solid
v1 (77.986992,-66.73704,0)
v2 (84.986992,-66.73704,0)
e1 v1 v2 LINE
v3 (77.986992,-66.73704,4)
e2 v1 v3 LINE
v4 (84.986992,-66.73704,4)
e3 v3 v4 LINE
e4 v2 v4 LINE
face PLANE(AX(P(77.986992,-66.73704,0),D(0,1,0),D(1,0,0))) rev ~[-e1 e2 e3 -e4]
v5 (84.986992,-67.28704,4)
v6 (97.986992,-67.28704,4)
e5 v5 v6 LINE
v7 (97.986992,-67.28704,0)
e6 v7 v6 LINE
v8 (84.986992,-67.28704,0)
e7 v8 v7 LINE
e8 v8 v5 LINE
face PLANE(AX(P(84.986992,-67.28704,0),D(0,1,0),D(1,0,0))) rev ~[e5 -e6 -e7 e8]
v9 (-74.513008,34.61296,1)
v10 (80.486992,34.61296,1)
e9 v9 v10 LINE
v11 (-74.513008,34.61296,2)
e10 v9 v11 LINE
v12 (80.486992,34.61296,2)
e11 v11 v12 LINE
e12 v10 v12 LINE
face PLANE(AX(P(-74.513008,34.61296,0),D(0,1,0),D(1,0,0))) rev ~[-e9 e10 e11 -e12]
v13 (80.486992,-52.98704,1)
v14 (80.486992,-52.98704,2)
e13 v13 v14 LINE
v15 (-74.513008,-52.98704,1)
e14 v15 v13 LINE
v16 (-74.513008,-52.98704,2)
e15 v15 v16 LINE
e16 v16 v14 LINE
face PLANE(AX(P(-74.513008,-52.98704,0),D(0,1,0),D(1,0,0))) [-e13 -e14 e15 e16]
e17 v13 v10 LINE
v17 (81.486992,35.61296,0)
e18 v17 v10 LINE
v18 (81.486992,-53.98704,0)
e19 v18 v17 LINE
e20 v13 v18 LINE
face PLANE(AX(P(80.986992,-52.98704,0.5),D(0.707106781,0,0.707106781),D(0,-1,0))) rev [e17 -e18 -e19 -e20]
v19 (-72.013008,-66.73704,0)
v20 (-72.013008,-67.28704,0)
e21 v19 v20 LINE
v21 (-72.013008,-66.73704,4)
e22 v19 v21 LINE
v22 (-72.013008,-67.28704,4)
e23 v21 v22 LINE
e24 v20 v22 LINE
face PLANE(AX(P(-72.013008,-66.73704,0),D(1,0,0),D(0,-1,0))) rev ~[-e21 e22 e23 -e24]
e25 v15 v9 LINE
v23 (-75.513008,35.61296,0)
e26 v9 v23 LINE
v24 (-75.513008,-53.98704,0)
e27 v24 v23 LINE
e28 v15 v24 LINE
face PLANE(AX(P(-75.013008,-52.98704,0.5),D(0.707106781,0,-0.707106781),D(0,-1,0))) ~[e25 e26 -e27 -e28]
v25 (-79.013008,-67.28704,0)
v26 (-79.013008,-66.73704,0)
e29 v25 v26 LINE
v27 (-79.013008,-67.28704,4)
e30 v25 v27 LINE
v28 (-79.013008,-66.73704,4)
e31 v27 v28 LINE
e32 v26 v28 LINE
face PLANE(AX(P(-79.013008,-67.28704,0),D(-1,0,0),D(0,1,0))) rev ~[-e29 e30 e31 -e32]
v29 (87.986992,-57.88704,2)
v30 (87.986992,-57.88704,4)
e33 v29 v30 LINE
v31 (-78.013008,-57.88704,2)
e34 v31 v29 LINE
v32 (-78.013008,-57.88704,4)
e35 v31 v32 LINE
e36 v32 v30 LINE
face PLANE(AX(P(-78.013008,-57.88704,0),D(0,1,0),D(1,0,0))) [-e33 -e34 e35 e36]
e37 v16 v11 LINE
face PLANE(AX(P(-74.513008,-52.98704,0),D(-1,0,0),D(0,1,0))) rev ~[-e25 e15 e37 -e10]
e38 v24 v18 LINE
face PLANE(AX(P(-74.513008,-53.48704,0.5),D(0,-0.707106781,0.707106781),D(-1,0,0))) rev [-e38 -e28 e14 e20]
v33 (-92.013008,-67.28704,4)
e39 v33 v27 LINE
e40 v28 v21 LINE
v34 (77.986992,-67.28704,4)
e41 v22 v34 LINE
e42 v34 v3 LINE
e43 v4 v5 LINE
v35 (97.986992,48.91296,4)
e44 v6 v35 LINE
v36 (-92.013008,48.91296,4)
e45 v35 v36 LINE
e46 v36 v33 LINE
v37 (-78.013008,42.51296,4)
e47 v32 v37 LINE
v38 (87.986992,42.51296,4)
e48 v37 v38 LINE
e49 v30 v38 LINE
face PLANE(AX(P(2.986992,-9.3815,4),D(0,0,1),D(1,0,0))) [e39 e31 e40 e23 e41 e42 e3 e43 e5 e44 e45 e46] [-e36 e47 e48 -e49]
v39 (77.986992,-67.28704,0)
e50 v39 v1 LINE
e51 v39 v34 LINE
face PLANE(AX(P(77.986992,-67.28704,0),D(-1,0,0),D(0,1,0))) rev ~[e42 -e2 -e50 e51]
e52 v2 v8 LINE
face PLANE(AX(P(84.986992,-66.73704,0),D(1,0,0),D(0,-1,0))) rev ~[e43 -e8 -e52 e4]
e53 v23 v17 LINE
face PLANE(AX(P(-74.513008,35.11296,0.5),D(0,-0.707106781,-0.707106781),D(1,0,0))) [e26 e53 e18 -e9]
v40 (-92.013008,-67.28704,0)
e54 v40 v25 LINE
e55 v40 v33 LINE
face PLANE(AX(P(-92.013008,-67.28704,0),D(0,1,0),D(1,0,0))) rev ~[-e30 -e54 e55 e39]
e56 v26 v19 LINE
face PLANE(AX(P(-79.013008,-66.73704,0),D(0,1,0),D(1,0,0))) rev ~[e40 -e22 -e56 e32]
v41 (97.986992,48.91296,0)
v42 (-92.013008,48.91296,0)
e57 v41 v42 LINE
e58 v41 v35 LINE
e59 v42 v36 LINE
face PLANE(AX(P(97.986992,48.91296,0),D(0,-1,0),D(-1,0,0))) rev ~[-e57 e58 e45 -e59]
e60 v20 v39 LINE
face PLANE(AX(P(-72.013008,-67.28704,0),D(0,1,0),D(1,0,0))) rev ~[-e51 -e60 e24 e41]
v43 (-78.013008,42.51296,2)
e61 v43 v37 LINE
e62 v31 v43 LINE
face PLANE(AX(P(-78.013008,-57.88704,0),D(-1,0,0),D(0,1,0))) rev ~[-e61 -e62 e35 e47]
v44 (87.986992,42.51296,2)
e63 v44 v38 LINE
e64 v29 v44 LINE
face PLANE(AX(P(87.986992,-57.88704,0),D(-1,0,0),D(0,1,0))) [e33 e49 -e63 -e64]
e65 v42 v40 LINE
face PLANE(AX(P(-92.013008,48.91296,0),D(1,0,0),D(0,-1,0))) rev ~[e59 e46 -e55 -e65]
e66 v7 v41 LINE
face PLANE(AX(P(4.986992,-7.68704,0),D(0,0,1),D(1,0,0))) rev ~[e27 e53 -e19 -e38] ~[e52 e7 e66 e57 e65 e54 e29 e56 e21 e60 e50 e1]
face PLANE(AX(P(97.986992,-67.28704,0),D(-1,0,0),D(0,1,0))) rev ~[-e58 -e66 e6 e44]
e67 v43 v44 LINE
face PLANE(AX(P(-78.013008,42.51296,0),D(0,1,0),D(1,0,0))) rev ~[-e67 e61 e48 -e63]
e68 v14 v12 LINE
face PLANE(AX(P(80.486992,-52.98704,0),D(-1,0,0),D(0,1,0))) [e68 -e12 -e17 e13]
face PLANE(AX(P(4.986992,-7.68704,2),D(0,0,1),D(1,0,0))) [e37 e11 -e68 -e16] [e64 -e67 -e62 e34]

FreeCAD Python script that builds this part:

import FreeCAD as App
import Part
import Sketcher

V = App.Vector
Q = App.Units.Quantity


def edges_at(feature, points):
    """Names of the edges that pass closest to the given points."""
    edges = feature.Shape.Edges
    near = lambda p: min(range(len(edges)), key=lambda i: edges[i].distToShape(Part.Vertex(*p))[0])
    return sorted({f"Edge{near(p) + 1}" for p in points})

doc = App.newDocument("Part")
body = doc.addObject("PartDesign::Body", "Body")

# Sketch on XY plane
sketch1 = doc.addObject("Sketcher::SketchObject", "Sketch")
body.addObject(sketch1)
sketch1.AttachmentSupport = (doc.XY_Plane, [""])
sketch1.MapMode = "FlatFace"
sketch1.addGeometry(Part.LineSegment(V(97.986992, 48.91296, 0), V(-92.013008, 48.91296, 0)), False)
sketch1.addGeometry(Part.LineSegment(V(-92.013008, 48.91296, 0), V(-92.013008, -67.28704, 0)), False)
sketch1.addGeometry(Part.LineSegment(V(-92.013008, -67.28704, 0), V(-79.013008, -67.28704, 0)), False)
sketch1.addGeometry(Part.LineSegment(V(-79.013008, -67.28704, 0), V(-79.013008, -66.73704, 0)), False)
sketch1.addGeometry(Part.LineSegment(V(-79.013008, -66.73704, 0), V(-72.013008, -66.73704, 0)), False)
sketch1.addGeometry(Part.LineSegment(V(-72.013008, -66.73704, 0), V(-72.013008, -67.28704, 0)), False)
sketch1.addGeometry(Part.LineSegment(V(-72.013008, -67.28704, 0), V(77.986992, -67.28704, 0)), False)
sketch1.addGeometry(Part.LineSegment(V(77.986992, -67.28704, 0), V(77.986992, -66.73704, 0)), False)
sketch1.addGeometry(Part.LineSegment(V(77.986992, -66.73704, 0), V(84.986992, -66.73704, 0)), False)
sketch1.addGeometry(Part.LineSegment(V(84.986992, -66.73704, 0), V(84.986992, -67.28704, 0)), False)
sketch1.addGeometry(Part.LineSegment(V(84.986992, -67.28704, 0), V(97.986992, -67.28704, 0)), False)
sketch1.addGeometry(Part.LineSegment(V(97.986992, -67.28704, 0), V(97.986992, 48.91296, 0)), False)
sketch1.addGeometry(Part.LineSegment(V(87.986992, -57.88704, 0), V(-78.013008, -57.88704, 0)), False)
sketch1.addGeometry(Part.LineSegment(V(-78.013008, -57.88704, 0), V(-78.013008, 42.51296, 0)), False)
sketch1.addGeometry(Part.LineSegment(V(-78.013008, 42.51296, 0), V(87.986992, 42.51296, 0)), False)
sketch1.addGeometry(Part.LineSegment(V(87.986992, 42.51296, 0), V(87.986992, -57.88704, 0)), False)
sketch1.addConstraint(Sketcher.Constraint("Coincident", 0, 2, 1, 1))
sketch1.addConstraint(Sketcher.Constraint("Coincident", 1, 2, 2, 1))
sketch1.addConstraint(Sketcher.Constraint("Coincident", 2, 2, 3, 1))
sketch1.addConstraint(Sketcher.Constraint("Coincident", 3, 2, 4, 1))
sketch1.addConstraint(Sketcher.Constraint("Coincident", 4, 2, 5, 1))
sketch1.addConstraint(Sketcher.Constraint("Coincident", 5, 2, 6, 1))
sketch1.addConstraint(Sketcher.Constraint("Coincident", 6, 2, 7, 1))
sketch1.addConstraint(Sketcher.Constraint("Coincident", 7, 2, 8, 1))
sketch1.addConstraint(Sketcher.Constraint("Coincident", 8, 2, 9, 1))
sketch1.addConstraint(Sketcher.Constraint("Coincident", 9, 2, 10, 1))
sketch1.addConstraint(Sketcher.Constraint("Coincident", 10, 2, 11, 1))
sketch1.addConstraint(Sketcher.Constraint("Coincident", 11, 2, 0, 1))
sketch1.addConstraint(Sketcher.Constraint("Coincident", 12, 2, 13, 1))
sketch1.addConstraint(Sketcher.Constraint("Coincident", 13, 2, 14, 1))
sketch1.addConstraint(Sketcher.Constraint("Coincident", 14, 2, 15, 1))
sketch1.addConstraint(Sketcher.Constraint("Coincident", 15, 2, 12, 1))
sketch1.addConstraint(Sketcher.Constraint("Horizontal", 0))
sketch1.addConstraint(Sketcher.Constraint("Vertical", 1))
sketch1.addConstraint(Sketcher.Constraint("Horizontal", 2))
sketch1.addConstraint(Sketcher.Constraint("Vertical", 3))
sketch1.addConstraint(Sketcher.Constraint("Horizontal", 4))
sketch1.addConstraint(Sketcher.Constraint("Vertical", 5))
sketch1.addConstraint(Sketcher.Constraint("Horizontal", 6))
sketch1.addConstraint(Sketcher.Constraint("Vertical", 7))
sketch1.addConstraint(Sketcher.Constraint("Horizontal", 8))
sketch1.addConstraint(Sketcher.Constraint("Vertical", 9))
sketch1.addConstraint(Sketcher.Constraint("Horizontal", 10))
sketch1.addConstraint(Sketcher.Constraint("Vertical", 11))
sketch1.addConstraint(Sketcher.Constraint("Horizontal", 12))
sketch1.addConstraint(Sketcher.Constraint("Vertical", 13))
sketch1.addConstraint(Sketcher.Constraint("Horizontal", 14))
sketch1.addConstraint(Sketcher.Constraint("Vertical", 15))
sketch1.addConstraint(Sketcher.Constraint("Horizontal", 2, 2, 5, 2))
sketch1.addConstraint(Sketcher.Constraint("Horizontal", 4, 2, 7, 2))
sketch1.addConstraint(Sketcher.Constraint("Horizontal", 6, 2, 9, 2))
sketch1.addConstraint(Sketcher.Constraint("Equal", 4, 8))
sketch1.addConstraint(Sketcher.Constraint("Equal", 2, 10))
sketch1.addConstraint(Sketcher.Constraint("DistanceX", 0, 2, 0, 1, Q("190 mm")))
sketch1.addConstraint(Sketcher.Constraint("DistanceX", 2, 1, 2, 2, Q("13 mm")))
sketch1.addConstraint(Sketcher.Constraint("DistanceX", 4, 1, 4, 2, Q("7 mm")))
sketch1.addConstraint(Sketcher.Constraint("DistanceX", 12, 2, 12, 1, Q("166 mm")))
sketch1.addConstraint(Sketcher.Constraint("DistanceY", 1, 2, 1, 1, Q("116.2 mm")))
sketch1.addConstraint(Sketcher.Constraint("DistanceY", 13, 1, 13, 2, Q("100.4 mm")))
sketch1.addConstraint(Sketcher.Constraint("DistanceX", 3, 2, 12, 2, Q("1 mm")))
sketch1.addConstraint(Sketcher.Constraint("DistanceY", 3, 1, 3, 2, Q("0.55 mm")))
sketch1.addConstraint(Sketcher.Constraint("DistanceY", 2, 2, 12, 2, Q("9.4 mm")))
sketch1.addConstraint(Sketcher.Constraint("DistanceX", 0, 2, -1, 1, Q("92.013008 mm")))
sketch1.addConstraint(Sketcher.Constraint("DistanceY", -1, 1, 0, 2, Q("48.91296 mm")))
pad1 = doc.addObject("PartDesign::Pad", "Pad")
body.addObject(pad1)
pad1.Profile = sketch1
pad1.Length = 4

# Sketch on XY plane
sketch2 = doc.addObject("Sketcher::SketchObject", "Sketch001")
body.addObject(sketch2)
sketch2.AttachmentSupport = (doc.XY_Plane, [""])
sketch2.MapMode = "FlatFace"
sketch2.addGeometry(Part.LineSegment(V(-78.013008, 42.51296, 0), V(-78.013008, -57.88704, 0)), False)
sketch2.addGeometry(Part.LineSegment(V(-78.013008, -57.88704, 0), V(87.986992, -57.88704, 0)), False)
sketch2.addGeometry(Part.LineSegment(V(87.986992, -57.88704, 0), V(87.986992, 42.51296, 0)), False)
sketch2.addGeometry(Part.LineSegment(V(87.986992, 42.51296, 0), V(-78.013008, 42.51296, 0)), False)
sketch2.addGeometry(Part.LineSegment(V(80.486992, -52.98704, 0), V(-74.513008, -52.98704, 0)), False)
sketch2.addGeometry(Part.LineSegment(V(-74.513008, -52.98704, 0), V(-74.513008, 34.61296, 0)), False)
sketch2.addGeometry(Part.LineSegment(V(-74.513008, 34.61296, 0), V(80.486992, 34.61296, 0)), False)
sketch2.addGeometry(Part.LineSegment(V(80.486992, 34.61296, 0), V(80.486992, -52.98704, 0)), False)
sketch2.addConstraint(Sketcher.Constraint("Coincident", 0, 2, 1, 1))
sketch2.addConstraint(Sketcher.Constraint("Coincident", 1, 2, 2, 1))
sketch2.addConstraint(Sketcher.Constraint("Coincident", 2, 2, 3, 1))
sketch2.addConstraint(Sketcher.Constraint("Coincident", 3, 2, 0, 1))
sketch2.addConstraint(Sketcher.Constraint("Coincident", 4, 2, 5, 1))
sketch2.addConstraint(Sketcher.Constraint("Coincident", 5, 2, 6, 1))
sketch2.addConstraint(Sketcher.Constraint("Coincident", 6, 2, 7, 1))
sketch2.addConstraint(Sketcher.Constraint("Coincident", 7, 2, 4, 1))
sketch2.addConstraint(Sketcher.Constraint("Vertical", 0))
sketch2.addConstraint(Sketcher.Constraint("Horizontal", 1))
sketch2.addConstraint(Sketcher.Constraint("Vertical", 2))
sketch2.addConstraint(Sketcher.Constraint("Horizontal", 3))
sketch2.addConstraint(Sketcher.Constraint("Horizontal", 4))
sketch2.addConstraint(Sketcher.Constraint("Vertical", 5))
sketch2.addConstraint(Sketcher.Constraint("Horizontal", 6))
sketch2.addConstraint(Sketcher.Constraint("Vertical", 7))
sketch2.addConstraint(Sketcher.Constraint("DistanceX", 1, 1, 1, 2, Q("166 mm")))
sketch2.addConstraint(Sketcher.Constraint("DistanceX", 4, 2, 4, 1, Q("155 mm")))
sketch2.addConstraint(Sketcher.Constraint("DistanceY", 0, 2, 0, 1, Q("100.4 mm")))
sketch2.addConstraint(Sketcher.Constraint("DistanceY", 5, 1, 5, 2, Q("87.6 mm")))
sketch2.addConstraint(Sketcher.Constraint("DistanceX", 0, 2, 4, 2, Q("3.5 mm")))
sketch2.addConstraint(Sketcher.Constraint("DistanceY", 0, 2, 4, 2, Q("4.9 mm")))
sketch2.addConstraint(Sketcher.Constraint("DistanceX", 0, 2, -1, 1, Q("78.013008 mm")))
sketch2.addConstraint(Sketcher.Constraint("DistanceY", 0, 2, -1, 1, Q("57.88704 mm")))
pad2 = doc.addObject("PartDesign::Pad", "Pad001")
body.addObject(pad2)
pad2.Profile = sketch2
pad2.Length = 2
doc.recompute()

chamfer = doc.addObject("PartDesign::Chamfer", "Chamfer")
body.addObject(chamfer)
chamfer.Base = (pad2, edges_at(pad2, [
    (2.987, -52.987, 0),
    (-74.513, -9.187, 0),
    (2.987, 34.613, 0),
    (80.487, -9.187, 0),
]))
chamfer.Size = 1

doc.recompute()
